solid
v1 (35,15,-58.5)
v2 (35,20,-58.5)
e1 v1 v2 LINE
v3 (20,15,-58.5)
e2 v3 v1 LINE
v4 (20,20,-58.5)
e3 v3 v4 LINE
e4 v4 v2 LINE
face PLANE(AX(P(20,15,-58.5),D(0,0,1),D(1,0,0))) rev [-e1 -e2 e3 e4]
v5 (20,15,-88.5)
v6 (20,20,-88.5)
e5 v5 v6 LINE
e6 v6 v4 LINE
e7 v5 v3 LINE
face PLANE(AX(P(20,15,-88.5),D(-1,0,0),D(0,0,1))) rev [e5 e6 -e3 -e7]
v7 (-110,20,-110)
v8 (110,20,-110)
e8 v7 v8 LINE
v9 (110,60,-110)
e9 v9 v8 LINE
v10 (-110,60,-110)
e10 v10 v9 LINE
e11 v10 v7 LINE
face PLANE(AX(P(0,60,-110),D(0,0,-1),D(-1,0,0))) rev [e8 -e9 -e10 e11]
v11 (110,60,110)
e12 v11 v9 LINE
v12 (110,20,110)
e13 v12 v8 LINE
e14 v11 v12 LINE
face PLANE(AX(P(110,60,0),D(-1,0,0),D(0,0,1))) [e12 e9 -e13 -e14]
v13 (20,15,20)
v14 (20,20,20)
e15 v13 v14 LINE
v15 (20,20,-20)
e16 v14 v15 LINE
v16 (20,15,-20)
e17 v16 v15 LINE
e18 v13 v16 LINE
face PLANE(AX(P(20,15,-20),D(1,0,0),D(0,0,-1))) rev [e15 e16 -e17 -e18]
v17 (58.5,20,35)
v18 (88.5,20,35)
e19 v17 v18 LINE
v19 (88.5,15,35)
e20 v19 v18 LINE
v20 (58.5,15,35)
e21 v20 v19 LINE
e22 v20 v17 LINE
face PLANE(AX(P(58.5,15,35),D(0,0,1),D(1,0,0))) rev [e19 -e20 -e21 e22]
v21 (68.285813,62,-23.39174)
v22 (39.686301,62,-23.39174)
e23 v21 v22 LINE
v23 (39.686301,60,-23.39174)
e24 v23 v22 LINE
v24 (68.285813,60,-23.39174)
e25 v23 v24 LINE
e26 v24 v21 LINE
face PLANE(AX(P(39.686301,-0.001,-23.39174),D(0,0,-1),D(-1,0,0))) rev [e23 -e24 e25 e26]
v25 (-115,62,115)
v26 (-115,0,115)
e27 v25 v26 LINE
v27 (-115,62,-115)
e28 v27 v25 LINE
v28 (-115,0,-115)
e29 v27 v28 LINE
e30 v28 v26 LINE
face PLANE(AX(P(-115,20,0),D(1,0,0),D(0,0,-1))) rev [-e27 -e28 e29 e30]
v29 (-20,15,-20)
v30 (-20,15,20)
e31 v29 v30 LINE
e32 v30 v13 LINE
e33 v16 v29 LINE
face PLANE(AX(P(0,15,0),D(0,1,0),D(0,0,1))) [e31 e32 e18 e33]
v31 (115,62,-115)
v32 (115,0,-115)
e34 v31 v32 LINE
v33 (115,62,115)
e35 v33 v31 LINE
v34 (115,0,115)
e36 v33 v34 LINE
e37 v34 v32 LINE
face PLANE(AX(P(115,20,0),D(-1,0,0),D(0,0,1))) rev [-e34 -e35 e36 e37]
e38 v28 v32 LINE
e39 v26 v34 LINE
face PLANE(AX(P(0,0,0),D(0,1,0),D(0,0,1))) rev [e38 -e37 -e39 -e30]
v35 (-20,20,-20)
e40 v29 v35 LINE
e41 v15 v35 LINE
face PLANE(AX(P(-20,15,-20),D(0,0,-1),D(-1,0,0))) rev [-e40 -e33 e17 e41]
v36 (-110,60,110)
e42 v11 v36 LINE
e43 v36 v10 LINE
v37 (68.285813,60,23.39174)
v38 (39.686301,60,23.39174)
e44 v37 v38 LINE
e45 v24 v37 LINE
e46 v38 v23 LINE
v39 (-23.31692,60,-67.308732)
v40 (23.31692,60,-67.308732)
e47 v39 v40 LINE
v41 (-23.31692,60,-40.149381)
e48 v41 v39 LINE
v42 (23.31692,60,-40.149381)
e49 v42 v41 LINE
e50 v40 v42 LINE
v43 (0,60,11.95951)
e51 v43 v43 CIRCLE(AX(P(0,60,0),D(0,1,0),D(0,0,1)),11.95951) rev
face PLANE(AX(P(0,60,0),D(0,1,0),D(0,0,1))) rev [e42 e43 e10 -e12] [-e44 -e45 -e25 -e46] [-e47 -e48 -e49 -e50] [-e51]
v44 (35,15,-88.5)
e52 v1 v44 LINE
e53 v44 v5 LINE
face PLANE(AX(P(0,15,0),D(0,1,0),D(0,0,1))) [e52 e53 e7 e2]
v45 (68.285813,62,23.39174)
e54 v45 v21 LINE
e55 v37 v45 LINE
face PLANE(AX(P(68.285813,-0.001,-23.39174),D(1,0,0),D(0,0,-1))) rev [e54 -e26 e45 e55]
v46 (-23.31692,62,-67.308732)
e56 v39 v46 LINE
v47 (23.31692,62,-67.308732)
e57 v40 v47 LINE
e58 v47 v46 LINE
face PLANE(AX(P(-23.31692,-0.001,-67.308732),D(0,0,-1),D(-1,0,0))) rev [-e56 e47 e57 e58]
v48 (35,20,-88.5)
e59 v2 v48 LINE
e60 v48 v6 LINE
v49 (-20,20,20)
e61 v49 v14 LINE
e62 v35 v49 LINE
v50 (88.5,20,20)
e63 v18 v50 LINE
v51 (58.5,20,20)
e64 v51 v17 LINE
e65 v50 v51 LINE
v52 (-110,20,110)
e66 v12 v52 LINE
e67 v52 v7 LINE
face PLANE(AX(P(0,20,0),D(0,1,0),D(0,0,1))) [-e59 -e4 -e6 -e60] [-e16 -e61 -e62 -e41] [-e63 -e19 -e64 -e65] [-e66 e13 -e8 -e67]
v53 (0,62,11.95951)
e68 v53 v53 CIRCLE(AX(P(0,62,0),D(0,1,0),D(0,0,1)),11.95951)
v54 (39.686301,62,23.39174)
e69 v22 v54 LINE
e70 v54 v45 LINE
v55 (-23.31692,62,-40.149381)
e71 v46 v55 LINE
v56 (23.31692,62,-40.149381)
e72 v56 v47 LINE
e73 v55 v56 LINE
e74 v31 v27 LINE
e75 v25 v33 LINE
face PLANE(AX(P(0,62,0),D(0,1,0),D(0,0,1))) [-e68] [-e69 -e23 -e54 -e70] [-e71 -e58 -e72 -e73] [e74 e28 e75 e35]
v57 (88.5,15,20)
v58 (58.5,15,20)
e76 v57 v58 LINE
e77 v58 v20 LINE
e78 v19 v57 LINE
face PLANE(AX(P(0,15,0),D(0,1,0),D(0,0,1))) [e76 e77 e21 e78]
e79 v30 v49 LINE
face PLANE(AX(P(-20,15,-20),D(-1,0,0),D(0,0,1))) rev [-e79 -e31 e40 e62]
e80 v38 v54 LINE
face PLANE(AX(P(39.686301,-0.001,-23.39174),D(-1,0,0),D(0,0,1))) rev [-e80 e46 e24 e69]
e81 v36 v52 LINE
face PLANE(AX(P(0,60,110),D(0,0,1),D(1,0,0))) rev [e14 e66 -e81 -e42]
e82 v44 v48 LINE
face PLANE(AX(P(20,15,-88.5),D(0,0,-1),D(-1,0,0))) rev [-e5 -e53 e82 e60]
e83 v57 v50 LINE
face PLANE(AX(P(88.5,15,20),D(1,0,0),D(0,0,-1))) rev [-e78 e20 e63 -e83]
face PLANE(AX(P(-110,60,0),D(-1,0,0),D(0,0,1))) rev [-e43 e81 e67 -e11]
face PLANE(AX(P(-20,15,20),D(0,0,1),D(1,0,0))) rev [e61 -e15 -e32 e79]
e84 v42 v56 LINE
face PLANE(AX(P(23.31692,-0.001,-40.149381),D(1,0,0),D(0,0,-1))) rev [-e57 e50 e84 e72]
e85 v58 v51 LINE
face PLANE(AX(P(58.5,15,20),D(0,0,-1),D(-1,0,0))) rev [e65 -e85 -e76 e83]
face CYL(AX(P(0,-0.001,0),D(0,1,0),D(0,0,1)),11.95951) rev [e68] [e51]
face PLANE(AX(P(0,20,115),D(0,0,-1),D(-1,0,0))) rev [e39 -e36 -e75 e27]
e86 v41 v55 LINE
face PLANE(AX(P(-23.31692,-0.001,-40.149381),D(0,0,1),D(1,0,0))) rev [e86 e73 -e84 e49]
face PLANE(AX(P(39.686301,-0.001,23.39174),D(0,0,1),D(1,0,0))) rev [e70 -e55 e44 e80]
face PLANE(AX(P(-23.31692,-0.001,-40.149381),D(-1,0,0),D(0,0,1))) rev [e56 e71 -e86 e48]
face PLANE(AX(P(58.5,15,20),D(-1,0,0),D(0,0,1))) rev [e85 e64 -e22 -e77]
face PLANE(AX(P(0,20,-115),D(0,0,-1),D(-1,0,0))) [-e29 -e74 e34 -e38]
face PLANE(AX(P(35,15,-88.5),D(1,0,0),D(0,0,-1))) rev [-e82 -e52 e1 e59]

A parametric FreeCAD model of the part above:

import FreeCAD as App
import Part
import Sketcher

V = App.Vector
Q = App.Units.Quantity


def add_polygon(sketch, points):
    """Adds a closed chain of lines whose ends are joined by coincident constraints."""
    first, n = sketch.GeometryCount, len(points)
    for a, b in zip(points, points[1:] + points[:1]):
        sketch.addGeometry(Part.LineSegment(App.Vector(*a, 0), App.Vector(*b, 0)), False)
    for i in range(n):
        sketch.addConstraint(Sketcher.Constraint("Coincident", first + i, 2, first + (i + 1) % n, 1))

doc = App.newDocument("Part")
params = doc.addObject("Spreadsheet::Sheet", "Params")
for row, (alias, value) in enumerate([
    ("sketch1_width", "250 mm"),
    ("pad1_length", "20 mm"),
    ("sketch2_width", "15 mm"),
    ("sketch2_width2", "30 mm"),
    ("sketch2_width3", "40 mm"),
    ("pocket1_length", "5 mm"),
    ("sketch3_width", "250 mm"),
    ("sketch3_width2", "200 mm"),
    ("pocket2_length", "20 mm"),
    ("sketch4_width", "230 mm"),
    ("sketch4_width2", "200 mm"),
    ("pad2_length", "20 mm"),
    ("sketch5_width", "230 mm"),
    ("sketch5_width2", "220 mm"),
    ("pad3_length", "40 mm"),
    ("sketch6_width", "230 mm"),
    ("pad4_length", "2 mm"),
], start=1):
    params.set(f"A{row}", alias)
    params.set(f"B{row}", "=" + value)
    params.setAlias(f"B{row}", alias)

body = doc.addObject("PartDesign::Body", "Body")

# Sketch on XZ plane
sketch1 = body.newObject("Sketcher::SketchObject", "Sketch")
sketch1.AttachmentSupport = (doc.getObject("XZ_Plane"), [""])
sketch1.MapMode = "FlatFace"
add_polygon(sketch1, [(-125, -125), (-125, 125), (125, 125), (125, -125)])  # lines 0-3
sketch1.addConstraint([
    Sketcher.Constraint("Vertical", 0),
    Sketcher.Constraint("Horizontal", 1),
    Sketcher.Constraint("Vertical", 2),
    Sketcher.Constraint("Horizontal", 3),
    Sketcher.Constraint("Symmetric", 0, 2, 2, 2, -1, 1),
    Sketcher.Constraint("Equal", 3, 0),
    Sketcher.Constraint("DistanceX", 1, 1, 1, 2, Q("250 mm")),
])
sketch1.setExpression("Constraints[10]", "Params.sketch1_width")
pad1 = body.newObject("PartDesign::Pad", "Pad")
pad1.Profile = sketch1
pad1.setExpression("Length", "Params.pad1_length")
pad1.Reversed = True

# Sketch on XZ plane
sketch2 = body.newObject("Sketcher::SketchObject", "Sketch001")
sketch2.AttachmentSupport = (doc.getObject("XZ_Plane"), [""])
sketch2.MapMode = "FlatFace"
sketch2.AttachmentOffset = App.Placement(V(0, 0, -20), App.Rotation())
add_polygon(sketch2, [(20, -88), (20, -58), (35, -58), (35, -88)])  # lines 0-3
add_polygon(sketch2, [(58, 20), (58, 35), (88, 35), (88, 20)])  # lines 4-7
add_polygon(sketch2, [(-20, -20), (-20, 20), (20, 20), (20, -20)])  # lines 8-11
sketch2.addConstraint([
    Sketcher.Constraint("Vertical", 0),
    Sketcher.Constraint("Horizontal", 1),
    Sketcher.Constraint("Vertical", 2),
    Sketcher.Constraint("Horizontal", 3),
    Sketcher.Constraint("Vertical", 4),
    Sketcher.Constraint("Horizontal", 5),
    Sketcher.Constraint("Vertical", 6),
    Sketcher.Constraint("Horizontal", 7),
    Sketcher.Constraint("Vertical", 8),
    Sketcher.Constraint("Horizontal", 9),
    Sketcher.Constraint("Vertical", 10),
    Sketcher.Constraint("Horizontal", 11),
    Sketcher.Constraint("Symmetric", 8, 2, 10, 2, -1, 1),
    Sketcher.Constraint("Horizontal", 7, 2, 8, 2),
    Sketcher.Constraint("Vertical", 3, 2, 9, 2),
    Sketcher.Constraint("Equal", 7, 0),
    Sketcher.Constraint("Equal", 3, 4),
    Sketcher.Constraint("Equal", 11, 8),
    Sketcher.Constraint("DistanceX", 1, 1, 1, 2, Q("15 mm")),
    Sketcher.Constraint("DistanceX", 5, 1, 5, 2, Q("30 mm")),
    Sketcher.Constraint("DistanceX", 9, 1, 9, 2, Q("40 mm")),
    Sketcher.Constraint("DistanceY", 0, 2, -1, 1, Q("58.5 mm")),
    Sketcher.Constraint("DistanceX", -1, 1, 4, 2, Q("58.5 mm")),
])
sketch2.setExpression("Constraints[30]", "Params.sketch2_width")
sketch2.setExpression("Constraints[31]", "Params.sketch2_width2")
sketch2.setExpression("Constraints[32]", "Params.sketch2_width3")
pocket1 = body.newObject("PartDesign::Pocket", "Pocket")
pocket1.Profile = sketch2
pocket1.setExpression("Length", "Params.pocket1_length")
pocket1.Reversed = True

# Sketch on XZ plane
sketch3 = body.newObject("Sketcher::SketchObject", "Sketch002")
sketch3.AttachmentSupport = (doc.getObject("XZ_Plane"), [""])
sketch3.MapMode = "FlatFace"
sketch3.AttachmentOffset = App.Placement(V(0, 0, -20), App.Rotation())
add_polygon(sketch3, [(-125, -125), (-125, 125), (125, 125), (125, -125)])  # lines 0-3
add_polygon(sketch3, [(100, 100), (-100, 100), (-100, -100), (100, -100)])  # lines 4-7
sketch3.addConstraint([
    Sketcher.Constraint("Vertical", 0),
    Sketcher.Constraint("Horizontal", 1),
    Sketcher.Constraint("Vertical", 2),
    Sketcher.Constraint("Horizontal", 3),
    Sketcher.Constraint("Horizontal", 4),
    Sketcher.Constraint("Vertical", 5),
    Sketcher.Constraint("Horizontal", 6),
    Sketcher.Constraint("Vertical", 7),
    Sketcher.Constraint("Symmetric", 0, 2, 2, 2, -1, 1),
    Sketcher.Constraint("Symmetric", 4, 2, 6, 2, -1, 1),
    Sketcher.Constraint("Equal", 3, 0),
    Sketcher.Constraint("Equal", 6, 5),
    Sketcher.Constraint("DistanceX", 1, 1, 1, 2, Q("250 mm")),
    Sketcher.Constraint("DistanceX", 4, 2, 4, 1, Q("200 mm")),
])
sketch3.setExpression("Constraints[20]", "Params.sketch3_width")
sketch3.setExpression("Constraints[21]", "Params.sketch3_width2")
pocket2 = body.newObject("PartDesign::Pocket", "Pocket001")
pocket2.Profile = sketch3
pocket2.setExpression("Length", "Params.pocket2_length")
pocket2.Reversed = True

# Sketch on XZ plane
sketch4 = body.newObject("Sketcher::SketchObject", "Sketch003")
sketch4.AttachmentSupport = (doc.getObject("XZ_Plane"), [""])
sketch4.MapMode = "FlatFace"
add_polygon(sketch4, [(115, -115), (115, 115), (-115, 115), (-115, -115)])  # lines 0-3
add_polygon(sketch4, [(-100, -100), (-100, 100), (100, 100), (100, -100)])  # lines 4-7
sketch4.addConstraint([
    Sketcher.Constraint("Vertical", 0),
    Sketcher.Constraint("Horizontal", 1),
    Sketcher.Constraint("Vertical", 2),
    Sketcher.Constraint("Horizontal", 3),
    Sketcher.Constraint("Vertical", 4),
    Sketcher.Constraint("Horizontal", 5),
    Sketcher.Constraint("Vertical", 6),
    Sketcher.Constraint("Horizontal", 7),
    Sketcher.Constraint("Symmetric", 0, 2, 2, 2, -1, 1),
    Sketcher.Constraint("Symmetric", 4, 2, 6, 2, -1, 1),
    Sketcher.Constraint("Equal", 3, 0),
    Sketcher.Constraint("Equal", 7, 4),
    Sketcher.Constraint("DistanceX", 1, 2, 1, 1, Q("230 mm")),
    Sketcher.Constraint("DistanceX", 5, 1, 5, 2, Q("200 mm")),
])
sketch4.setExpression("Constraints[20]", "Params.sketch4_width")
sketch4.setExpression("Constraints[21]", "Params.sketch4_width2")
pad2 = body.newObject("PartDesign::Pad", "Pad001")
pad2.Profile = sketch4
pad2.setExpression("Length", "Params.pad2_length")
pad2.Reversed = True

# Sketch on XZ plane
sketch5 = body.newObject("Sketcher::SketchObject", "Sketch004")
sketch5.AttachmentSupport = (doc.getObject("XZ_Plane"), [""])
sketch5.MapMode = "FlatFace"
sketch5.AttachmentOffset = App.Placement(V(0, 0, -20), App.Rotation())
add_polygon(sketch5, [(115, -115), (-115, -115), (-115, 115), (115, 115)])  # lines 0-3
add_polygon(sketch5, [(110, 110), (-110, 110), (-110, -110), (110, -110)])  # lines 4-7
sketch5.addConstraint([
    Sketcher.Constraint("Horizontal", 0),
    Sketcher.Constraint("Vertical", 1),
    Sketcher.Constraint("Horizontal", 2),
    Sketcher.Constraint("Vertical", 3),
    Sketcher.Constraint("Horizontal", 4),
    Sketcher.Constraint("Vertical", 5),
    Sketcher.Constraint("Horizontal", 6),
    Sketcher.Constraint("Vertical", 7),
    Sketcher.Constraint("Symmetric", 0, 2, 2, 2, -1, 1),
    Sketcher.Constraint("Symmetric", 4, 2, 6, 2, -1, 1),
    Sketcher.Constraint("Equal", 2, 1),
    Sketcher.Constraint("Equal", 6, 5),
    Sketcher.Constraint("DistanceX", 0, 2, 0, 1, Q("230 mm")),
    Sketcher.Constraint("DistanceX", 4, 2, 4, 1, Q("220 mm")),
])
sketch5.setExpression("Constraints[20]", "Params.sketch5_width")
sketch5.setExpression("Constraints[21]", "Params.sketch5_width2")
pad3 = body.newObject("PartDesign::Pad", "Pad002")
pad3.Profile = sketch5
pad3.setExpression("Length", "Params.pad3_length")
pad3.Reversed = True

# Sketch on XZ plane
sketch6 = body.newObject("Sketcher::SketchObject", "Sketch005")
sketch6.AttachmentSupport = (doc.getObject("XZ_Plane"), [""])
sketch6.MapMode = "FlatFace"
sketch6.AttachmentOffset = App.Placement(V(0, 0, -60), App.Rotation())
add_polygon(sketch6, [(-115, -115), (-115, 115), (115, 115), (115, -115)])  # lines 0-3
sketch6.addConstraint([
    Sketcher.Constraint("Vertical", 0),
    Sketcher.Constraint("Horizontal", 1),
    Sketcher.Constraint("Vertical", 2),
    Sketcher.Constraint("Horizontal", 3),
    Sketcher.Constraint("Symmetric", 0, 2, 2, 2, -1, 1),
    Sketcher.Constraint("Equal", 3, 0),
    Sketcher.Constraint("DistanceX", 1, 1, 1, 2, Q("230 mm")),
])
sketch6.setExpression("Constraints[10]", "Params.sketch6_width")
pad4 = body.newObject("PartDesign::Pad", "Pad003")
pad4.Profile = sketch6
pad4.setExpression("Length", "Params.pad4_length")
pad4.Reversed = True

# Sketch on XZ plane
sketch7 = body.newObject("Sketcher::SketchObject", "Sketch006")
sketch7.AttachmentSupport = (doc.getObject("XZ_Plane"), [""])
sketch7.MapMode = "FlatFace"
sketch7.AttachmentOffset = App.Placement(V(0, 0, -62), App.Rotation())
sketch7.addGeometry(Part.Circle(V(0, 0, 0), V(0, 0, 1), 9), False)
sketch7.addConstraint([
    Sketcher.Constraint("Coincident", 0, 3, -1, 1),
    Sketcher.Constraint("Diameter", 0, Q("18.350019 mm")),
])
pocket3 = body.newObject("PartDesign::Pocket", "Pocket002")
pocket3.Profile = sketch7
pocket3.Type = "UpToFirst"
pocket3.Reversed = True

# Sketch on XZ plane
sketch8 = body.newObject("Sketcher::SketchObject", "Sketch007")
sketch8.AttachmentSupport = (doc.getObject("XZ_Plane"), [""])
sketch8.MapMode = "FlatFace"
sketch8.AttachmentOffset = App.Placement(V(0, 0, -62), App.Rotation())
add_polygon(sketch8, [(40, -23), (40, 23), (68, 23), (68, -23)])  # lines 0-3
sketch8.addConstraint([
    Sketcher.Constraint("Vertical", 0),
    Sketcher.Constraint("Horizontal", 1),
    Sketcher.Constraint("Vertical", 2),
    Sketcher.Constraint("Horizontal", 3),
    Sketcher.Constraint("DistanceX", 1, 1, 1, 2, Q("28.599512 mm")),
    Sketcher.Constraint("DistanceY", 0, 1, 0, 2, Q("46.783479 mm")),
    Sketcher.Constraint("DistanceX", -1, 1, 0, 2, Q("39.686301 mm")),
    Sketcher.Constraint("DistanceY", -1, 1, 0, 2, Q("23.39174 mm")),
])
pocket4 = body.newObject("PartDesign::Pocket", "Pocket003")
pocket4.Profile = sketch8
pocket4.Type = "UpToFirst"
pocket4.Reversed = True

# Sketch on XZ plane
sketch9 = body.newObject("Sketcher::SketchObject", "Sketch008")
sketch9.AttachmentSupport = (doc.getObject("XZ_Plane"), [""])
sketch9.MapMode = "FlatFace"
sketch9.AttachmentOffset = App.Placement(V(0, 0, -62), App.Rotation())
add_polygon(sketch9, [(-23, -67), (-23, -40), (23, -40), (23, -67)])  # lines 0-3
sketch9.addConstraint([
    Sketcher.Constraint("Vertical", 0),
    Sketcher.Constraint("Horizontal", 1),
    Sketcher.Constraint("Vertical", 2),
    Sketcher.Constraint("Horizontal", 3),
    Sketcher.Constraint("DistanceX", 1, 1, 1, 2, Q("46.63384 mm")),
    Sketcher.Constraint("DistanceY", 0, 1, 0, 2, Q("27.159351 mm")),
    Sketcher.Constraint("DistanceX", 0, 2, -1, 1, Q("23.31692 mm")),
    Sketcher.Constraint("DistanceY", 0, 2, -1, 1, Q("40.149381 mm")),
])
pocket5 = body.newObject("PartDesign::Pocket", "Pocket004")
pocket5.Profile = sketch9
pocket5.Type = "UpToFirst"
pocket5.Reversed = True

# Sketch on XZ plane
sketch10 = body.newObject("Sketcher::SketchObject", "Sketch009")
sketch10.AttachmentSupport = (doc.getObject("XZ_Plane"), [""])
sketch10.MapMode = "FlatFace"
sketch10.AttachmentOffset = App.Placement(V(0, 0, -62), App.Rotation())
sketch10.addGeometry(Part.Circle(V(0, 0, 0), V(0, 0, 1), 12), False)
sketch10.addConstraint([
    Sketcher.Constraint("Coincident", 0, 3, -1, 1),
    Sketcher.Constraint("Diameter", 0, Q("23.919021 mm")),
])
pocket6 = body.newObject("PartDesign::Pocket", "Pocket005")
pocket6.Profile = sketch10
pocket6.Type = "UpToFirst"
pocket6.Reversed = True

doc.recompute()
